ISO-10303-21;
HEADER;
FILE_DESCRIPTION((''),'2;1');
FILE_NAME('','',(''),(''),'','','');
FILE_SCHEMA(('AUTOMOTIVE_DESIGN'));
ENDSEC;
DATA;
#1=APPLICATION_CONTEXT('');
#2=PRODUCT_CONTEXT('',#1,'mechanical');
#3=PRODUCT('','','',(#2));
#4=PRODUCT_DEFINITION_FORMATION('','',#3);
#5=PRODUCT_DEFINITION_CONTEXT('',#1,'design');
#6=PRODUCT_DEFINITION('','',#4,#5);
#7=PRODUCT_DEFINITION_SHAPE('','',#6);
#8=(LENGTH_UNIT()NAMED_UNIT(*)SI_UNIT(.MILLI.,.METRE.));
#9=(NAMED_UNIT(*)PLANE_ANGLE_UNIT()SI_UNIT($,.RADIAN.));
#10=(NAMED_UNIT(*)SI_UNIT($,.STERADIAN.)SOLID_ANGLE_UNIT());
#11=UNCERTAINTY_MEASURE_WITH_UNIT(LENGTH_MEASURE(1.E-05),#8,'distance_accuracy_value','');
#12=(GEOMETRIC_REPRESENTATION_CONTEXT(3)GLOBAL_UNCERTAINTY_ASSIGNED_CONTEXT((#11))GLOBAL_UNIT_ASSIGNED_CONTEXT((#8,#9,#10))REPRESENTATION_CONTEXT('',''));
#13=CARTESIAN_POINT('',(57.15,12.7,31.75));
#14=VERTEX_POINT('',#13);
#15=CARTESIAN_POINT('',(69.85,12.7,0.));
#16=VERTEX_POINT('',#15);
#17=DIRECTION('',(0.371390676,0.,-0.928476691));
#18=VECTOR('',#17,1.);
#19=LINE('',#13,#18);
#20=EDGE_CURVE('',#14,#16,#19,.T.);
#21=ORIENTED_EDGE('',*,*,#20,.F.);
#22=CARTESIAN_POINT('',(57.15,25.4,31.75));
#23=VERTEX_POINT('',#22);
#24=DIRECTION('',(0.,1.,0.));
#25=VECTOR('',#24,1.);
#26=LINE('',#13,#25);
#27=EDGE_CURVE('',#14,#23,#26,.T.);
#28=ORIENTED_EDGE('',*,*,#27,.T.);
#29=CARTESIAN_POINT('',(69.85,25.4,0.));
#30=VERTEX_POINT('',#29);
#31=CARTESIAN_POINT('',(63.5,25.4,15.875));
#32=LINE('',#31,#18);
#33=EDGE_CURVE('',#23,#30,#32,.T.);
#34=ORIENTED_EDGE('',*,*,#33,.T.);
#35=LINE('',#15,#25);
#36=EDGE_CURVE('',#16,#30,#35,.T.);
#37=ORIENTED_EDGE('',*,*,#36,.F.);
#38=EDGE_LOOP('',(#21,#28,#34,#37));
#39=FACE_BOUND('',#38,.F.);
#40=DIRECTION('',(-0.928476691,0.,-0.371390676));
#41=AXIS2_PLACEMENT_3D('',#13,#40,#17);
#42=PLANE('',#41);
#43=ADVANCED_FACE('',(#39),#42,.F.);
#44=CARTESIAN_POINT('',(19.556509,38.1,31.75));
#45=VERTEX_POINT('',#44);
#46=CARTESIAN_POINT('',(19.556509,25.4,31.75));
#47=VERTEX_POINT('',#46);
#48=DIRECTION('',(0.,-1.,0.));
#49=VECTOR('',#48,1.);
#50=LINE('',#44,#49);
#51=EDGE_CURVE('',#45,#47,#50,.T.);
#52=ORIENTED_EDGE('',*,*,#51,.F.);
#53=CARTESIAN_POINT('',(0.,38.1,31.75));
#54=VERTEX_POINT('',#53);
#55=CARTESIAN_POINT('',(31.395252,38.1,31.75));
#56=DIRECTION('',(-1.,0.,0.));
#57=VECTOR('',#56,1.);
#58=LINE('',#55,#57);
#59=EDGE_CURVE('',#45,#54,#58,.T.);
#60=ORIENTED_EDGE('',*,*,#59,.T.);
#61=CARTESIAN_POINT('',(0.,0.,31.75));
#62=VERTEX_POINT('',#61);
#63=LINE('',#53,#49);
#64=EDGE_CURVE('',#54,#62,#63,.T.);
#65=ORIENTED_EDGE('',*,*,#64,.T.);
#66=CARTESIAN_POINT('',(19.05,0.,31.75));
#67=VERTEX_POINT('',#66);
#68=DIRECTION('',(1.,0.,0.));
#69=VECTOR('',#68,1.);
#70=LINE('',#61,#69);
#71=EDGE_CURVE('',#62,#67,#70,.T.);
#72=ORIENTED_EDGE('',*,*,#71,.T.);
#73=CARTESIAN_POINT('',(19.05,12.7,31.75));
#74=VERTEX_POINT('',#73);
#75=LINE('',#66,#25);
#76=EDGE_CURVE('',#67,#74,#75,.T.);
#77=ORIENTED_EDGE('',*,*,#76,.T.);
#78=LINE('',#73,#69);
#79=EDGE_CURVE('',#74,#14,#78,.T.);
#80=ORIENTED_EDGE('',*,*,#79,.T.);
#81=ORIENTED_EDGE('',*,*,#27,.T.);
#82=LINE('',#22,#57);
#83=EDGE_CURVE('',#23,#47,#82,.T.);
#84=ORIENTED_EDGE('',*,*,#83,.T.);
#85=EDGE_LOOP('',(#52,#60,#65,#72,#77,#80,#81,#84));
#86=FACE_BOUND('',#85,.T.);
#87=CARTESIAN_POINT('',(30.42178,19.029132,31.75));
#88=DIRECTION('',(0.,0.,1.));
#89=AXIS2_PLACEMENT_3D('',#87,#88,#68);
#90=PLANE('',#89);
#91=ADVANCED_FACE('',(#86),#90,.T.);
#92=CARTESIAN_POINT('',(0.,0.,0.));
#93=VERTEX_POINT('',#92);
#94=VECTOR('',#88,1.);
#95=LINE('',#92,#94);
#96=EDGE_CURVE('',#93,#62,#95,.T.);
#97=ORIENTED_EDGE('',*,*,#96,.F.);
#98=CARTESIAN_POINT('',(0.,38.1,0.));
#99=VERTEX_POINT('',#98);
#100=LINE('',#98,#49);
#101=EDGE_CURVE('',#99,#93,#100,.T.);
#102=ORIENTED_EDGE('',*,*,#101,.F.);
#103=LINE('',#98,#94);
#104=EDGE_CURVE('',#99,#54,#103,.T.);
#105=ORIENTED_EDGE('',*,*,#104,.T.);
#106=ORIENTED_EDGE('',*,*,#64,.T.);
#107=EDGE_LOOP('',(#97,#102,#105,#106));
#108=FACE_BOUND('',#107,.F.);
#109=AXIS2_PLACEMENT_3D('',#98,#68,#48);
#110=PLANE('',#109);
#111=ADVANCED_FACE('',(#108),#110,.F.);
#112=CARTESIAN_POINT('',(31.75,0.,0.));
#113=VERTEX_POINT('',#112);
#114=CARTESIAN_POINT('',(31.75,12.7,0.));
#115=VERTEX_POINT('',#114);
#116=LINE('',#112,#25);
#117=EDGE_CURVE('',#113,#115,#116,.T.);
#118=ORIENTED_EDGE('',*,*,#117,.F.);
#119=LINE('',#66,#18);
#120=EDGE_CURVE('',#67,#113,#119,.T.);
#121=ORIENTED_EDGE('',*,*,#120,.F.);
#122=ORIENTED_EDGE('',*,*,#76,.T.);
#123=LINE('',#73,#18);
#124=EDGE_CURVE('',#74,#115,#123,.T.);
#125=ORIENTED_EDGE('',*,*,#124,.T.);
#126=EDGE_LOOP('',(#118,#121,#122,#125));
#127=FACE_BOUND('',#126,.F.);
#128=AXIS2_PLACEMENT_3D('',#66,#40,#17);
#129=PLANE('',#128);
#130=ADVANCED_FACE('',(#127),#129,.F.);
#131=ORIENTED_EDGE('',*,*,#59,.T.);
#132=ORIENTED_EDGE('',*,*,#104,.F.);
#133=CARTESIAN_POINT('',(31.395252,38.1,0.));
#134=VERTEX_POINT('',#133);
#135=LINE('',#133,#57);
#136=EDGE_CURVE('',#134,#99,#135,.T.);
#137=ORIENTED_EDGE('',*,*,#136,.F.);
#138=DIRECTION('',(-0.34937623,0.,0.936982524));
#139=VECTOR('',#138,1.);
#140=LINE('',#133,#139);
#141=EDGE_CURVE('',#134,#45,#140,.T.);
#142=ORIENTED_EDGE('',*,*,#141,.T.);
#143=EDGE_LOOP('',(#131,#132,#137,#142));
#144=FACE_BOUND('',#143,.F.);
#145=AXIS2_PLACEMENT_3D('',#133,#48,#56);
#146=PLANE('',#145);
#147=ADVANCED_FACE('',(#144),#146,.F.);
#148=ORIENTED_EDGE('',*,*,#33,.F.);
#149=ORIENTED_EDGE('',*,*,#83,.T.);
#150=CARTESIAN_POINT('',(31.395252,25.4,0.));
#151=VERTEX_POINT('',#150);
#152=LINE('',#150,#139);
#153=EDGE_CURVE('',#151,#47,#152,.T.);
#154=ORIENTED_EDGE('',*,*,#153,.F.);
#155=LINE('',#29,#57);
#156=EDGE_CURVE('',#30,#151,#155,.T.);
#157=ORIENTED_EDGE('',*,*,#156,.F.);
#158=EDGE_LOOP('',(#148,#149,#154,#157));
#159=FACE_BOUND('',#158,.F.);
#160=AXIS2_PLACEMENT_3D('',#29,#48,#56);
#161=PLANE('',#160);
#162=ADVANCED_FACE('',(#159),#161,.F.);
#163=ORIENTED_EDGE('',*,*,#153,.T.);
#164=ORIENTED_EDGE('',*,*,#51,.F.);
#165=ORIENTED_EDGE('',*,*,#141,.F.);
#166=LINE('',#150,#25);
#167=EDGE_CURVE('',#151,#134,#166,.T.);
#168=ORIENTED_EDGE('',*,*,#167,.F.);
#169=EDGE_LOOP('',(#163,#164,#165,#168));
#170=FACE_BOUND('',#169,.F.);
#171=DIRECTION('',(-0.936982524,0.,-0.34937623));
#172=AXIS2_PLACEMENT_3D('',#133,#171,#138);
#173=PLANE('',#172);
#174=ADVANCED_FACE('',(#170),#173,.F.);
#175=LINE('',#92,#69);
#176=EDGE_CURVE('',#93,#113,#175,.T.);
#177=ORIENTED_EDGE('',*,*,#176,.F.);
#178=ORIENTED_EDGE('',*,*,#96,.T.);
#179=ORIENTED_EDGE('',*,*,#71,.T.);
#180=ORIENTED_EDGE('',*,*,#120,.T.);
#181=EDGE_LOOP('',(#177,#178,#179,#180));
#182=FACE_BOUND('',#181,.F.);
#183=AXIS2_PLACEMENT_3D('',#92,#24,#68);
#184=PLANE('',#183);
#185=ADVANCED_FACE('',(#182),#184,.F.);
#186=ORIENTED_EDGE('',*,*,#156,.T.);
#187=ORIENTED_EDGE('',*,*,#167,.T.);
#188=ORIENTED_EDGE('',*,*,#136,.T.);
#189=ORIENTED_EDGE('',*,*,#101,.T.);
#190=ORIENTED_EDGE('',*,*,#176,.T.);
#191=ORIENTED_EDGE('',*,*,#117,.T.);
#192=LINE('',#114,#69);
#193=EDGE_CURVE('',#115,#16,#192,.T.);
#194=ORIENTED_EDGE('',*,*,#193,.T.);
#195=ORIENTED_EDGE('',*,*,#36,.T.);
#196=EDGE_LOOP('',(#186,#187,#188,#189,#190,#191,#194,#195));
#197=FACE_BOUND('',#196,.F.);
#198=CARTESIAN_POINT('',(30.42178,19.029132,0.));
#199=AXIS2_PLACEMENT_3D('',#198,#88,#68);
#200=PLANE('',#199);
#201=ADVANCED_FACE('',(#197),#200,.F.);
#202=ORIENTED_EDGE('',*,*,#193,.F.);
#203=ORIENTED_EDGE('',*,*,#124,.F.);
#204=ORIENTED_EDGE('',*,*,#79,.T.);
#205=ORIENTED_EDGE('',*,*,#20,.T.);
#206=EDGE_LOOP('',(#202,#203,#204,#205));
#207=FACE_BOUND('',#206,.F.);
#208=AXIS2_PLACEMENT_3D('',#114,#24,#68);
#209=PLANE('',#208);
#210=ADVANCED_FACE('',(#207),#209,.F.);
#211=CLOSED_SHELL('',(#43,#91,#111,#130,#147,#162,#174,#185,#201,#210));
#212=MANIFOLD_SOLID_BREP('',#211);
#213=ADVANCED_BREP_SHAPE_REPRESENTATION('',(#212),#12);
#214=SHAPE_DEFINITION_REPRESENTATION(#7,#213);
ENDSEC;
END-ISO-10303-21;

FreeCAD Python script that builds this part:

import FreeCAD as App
import Part
import Sketcher

V = App.Vector
Q = App.Units.Quantity


def add_polygon(sketch, points):
    """Adds a closed chain of lines whose ends are joined by coincident constraints."""
    first, n = sketch.GeometryCount, len(points)
    for a, b in zip(points, points[1:] + points[:1]):
        sketch.addGeometry(Part.LineSegment(App.Vector(*a, 0), App.Vector(*b, 0)), False)
    for i in range(n):
        sketch.addConstraint(Sketcher.Constraint("Coincident", first + i, 2, first + (i + 1) % n, 1))

doc = App.newDocument("Part")
body = doc.addObject("PartDesign::Body", "Body")

# Sketch on XY plane
sketch1 = doc.addObject("Sketcher::SketchObject", "Sketch")
body.addObject(sketch1)
sketch1.AttachmentSupport = (doc.XY_Plane, [""])
sketch1.MapMode = "FlatFace"
add_polygon(sketch1, [(0, 38), (0, 0), (32, 0), (32, 13), (70, 13), (70, 25), (31, 25), (31, 38)])  # lines 0-7
sketch1.addConstraint([
    Sketcher.Constraint("Vertical", 0),
    Sketcher.Constraint("Horizontal", 1),
    Sketcher.Constraint("Vertical", 2),
    Sketcher.Constraint("Horizontal", 3),
    Sketcher.Constraint("Vertical", 4),
    Sketcher.Constraint("Horizontal", 5),
    Sketcher.Constraint("Vertical", 6),
    Sketcher.Constraint("Horizontal", 7),
    Sketcher.Constraint("Coincident", 0, 2, -1, 1),
    Sketcher.Constraint("Equal", 3, 0),
    Sketcher.Constraint("Equal", 2, 4),
    Sketcher.Constraint("Equal", 4, 6),
    Sketcher.Constraint("DistanceX", 3, 1, 3, 2, Q("1.5 in")),
    Sketcher.Constraint("DistanceX", 1, 1, 1, 2, Q("1.25 in")),
    Sketcher.Constraint("DistanceX", 7, 2, 7, 1, Q("31.395252 mm")),
])
pad1 = doc.addObject("PartDesign::Pad", "Pad")
body.addObject(pad1)
pad1.Profile = sketch1
pad1.Length = Q("1.25 in")

# Sketch on XZ plane
sketch2 = doc.addObject("Sketcher::SketchObject", "Sketch001")
body.addObject(sketch2)
sketch2.AttachmentSupport = (doc.XZ_Plane, [""])
sketch2.MapMode = "FlatFace"
sketch2.AttachmentOffset = App.Placement(V(0, 0, -0.5 * 25.4), App.Rotation())
add_polygon(sketch2, [(70, 32), (57, 32), (70, 0)])  # lines 0-2
sketch2.addConstraint([
    Sketcher.Constraint("Horizontal", 0),
    Sketcher.Constraint("Vertical", 2),
    Sketcher.Constraint("PointOnObject", 1, 2, -1),
    Sketcher.Constraint("DistanceX", 0, 2, 0, 1, Q("0.5 in")),
    Sketcher.Constraint("DistanceY", 2, 1, 2, 2, Q("1.25 in")),
    Sketcher.Constraint("DistanceX", -1, 1, 0, 2, Q("2.25 in")),
])
pocket1 = doc.addObject("PartDesign::Pocket", "Pocket")
body.addObject(pocket1)
pocket1.Profile = sketch2
pocket1.Length = Q("1 in")

# Sketch on XZ plane
sketch3 = doc.addObject("Sketcher::SketchObject", "Sketch002")
body.addObject(sketch3)
sketch3.AttachmentSupport = (doc.XZ_Plane, [""])
sketch3.MapMode = "FlatFace"
add_polygon(sketch3, [(32, 32), (19, 32), (32, 0)])  # lines 0-2
sketch3.addConstraint([
    Sketcher.Constraint("Horizontal", 0),
    Sketcher.Constraint("Vertical", 2),
    Sketcher.Constraint("PointOnObject", 1, 2, -1),
    Sketcher.Constraint("DistanceX", 0, 2, 0, 1, Q("0.5 in")),
    Sketcher.Constraint("DistanceY", 2, 1, 2, 2, Q("1.25 in")),
    Sketcher.Constraint("DistanceX", -1, 1, 0, 2, Q("0.75 in")),
])
pocket2 = doc.addObject("PartDesign::Pocket", "Pocket001")
body.addObject(pocket2)
pocket2.Profile = sketch3
pocket2.Length = Q("0.5 in")

# Sketch on XZ plane
sketch4 = doc.addObject("Sketcher::SketchObject", "Sketch003")
body.addObject(sketch4)
sketch4.AttachmentSupport = (doc.XZ_Plane, [""])
sketch4.MapMode = "FlatFace"
sketch4.AttachmentOffset = App.Placement(V(0, 0, -1.5 * 25.4), App.Rotation())
add_polygon(sketch4, [(31, 0), (20, 32), (31, 32)])  # lines 0-2
sketch4.addConstraint([
    Sketcher.Constraint("Horizontal", 1),
    Sketcher.Constraint("Vertical", 2),
    Sketcher.Constraint("PointOnObject", 2, 2, -1),
    Sketcher.Constraint("DistanceY", 2, 2, 2, 1, Q("1.25 in")),
    Sketcher.Constraint("Distance", 0, Q("33.885371 mm")),
    Sketcher.Constraint("DistanceX", -1, 1, 0, 2, Q("19.556509 mm")),
])
pocket3 = doc.addObject("PartDesign::Pocket", "Pocket002")
body.addObject(pocket3)
pocket3.Profile = sketch4
pocket3.Length = Q("0.5 in")
pocket3.Reversed = True

doc.recompute()
